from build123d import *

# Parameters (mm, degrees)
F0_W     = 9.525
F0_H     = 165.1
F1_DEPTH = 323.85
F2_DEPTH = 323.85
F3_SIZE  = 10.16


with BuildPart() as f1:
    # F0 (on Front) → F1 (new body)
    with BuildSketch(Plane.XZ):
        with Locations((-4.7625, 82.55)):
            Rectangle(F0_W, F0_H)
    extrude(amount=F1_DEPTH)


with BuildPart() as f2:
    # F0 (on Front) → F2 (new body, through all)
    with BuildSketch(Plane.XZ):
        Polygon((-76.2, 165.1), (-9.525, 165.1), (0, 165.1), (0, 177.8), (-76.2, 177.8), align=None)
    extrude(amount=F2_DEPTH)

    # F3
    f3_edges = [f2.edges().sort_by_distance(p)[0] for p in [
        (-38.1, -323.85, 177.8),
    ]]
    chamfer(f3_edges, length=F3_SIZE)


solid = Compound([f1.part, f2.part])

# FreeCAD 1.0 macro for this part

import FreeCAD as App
import Part
import Sketcher
Q = App.Units.Quantity


def edges_at(feature, points):
    """Names of the edges that pass closest to the given points."""
    edges = feature.Shape.Edges
    near = lambda p: min(range(len(edges)), key=lambda i: edges[i].distToShape(Part.Vertex(*p))[0])
    return sorted({f"Edge{near(p) + 1}" for p in points})

doc = App.newDocument("Part")
params = doc.addObject("Spreadsheet::Sheet", "Params")
for row, (alias, value) in enumerate([
    ("sketch1_height", "6.5 in"),
    ("sketch1_width", "0.375 in"),
    ("pad1_length", "12.75 in"),
    ("sketch2_width", "3 in"),
    ("sketch2_height", "0.5 in"),
    ("pad2_length", "12.75 in"),
    ("chamfer_size", "0.4 in"),
], start=1):
    params.set(f"A{row}", alias)
    params.set(f"B{row}", "=" + value)
    params.setAlias(f"B{row}", alias)

body = doc.addObject("PartDesign::Body", "Body")

# Sketch on XZ plane
sketch1 = body.newObject("Sketcher::SketchObject", "Sketch")
sketch1.AttachmentSupport = (doc.getObject("XZ_Plane"), [""])
sketch1.MapMode = "FlatFace"
sketch1.addGeometry(Part.LineSegment(App.Vector(-10, 165, 0), App.Vector(-10, 0, 0)), False)
sketch1.addGeometry(Part.LineSegment(App.Vector(-10, 0, 0), App.Vector(0, 0, 0)), False)
sketch1.addGeometry(Part.LineSegment(App.Vector(0, 0, 0), App.Vector(0, 165, 0)), False)
sketch1.addGeometry(Part.LineSegment(App.Vector(0, 165, 0), App.Vector(-10, 165, 0)), False)
sketch1.addConstraint(Sketcher.Constraint("Coincident", 0, 2, 1, 1))
sketch1.addConstraint(Sketcher.Constraint("Coincident", 1, 2, 2, 1))
sketch1.addConstraint(Sketcher.Constraint("Coincident", 2, 2, 3, 1))
sketch1.addConstraint(Sketcher.Constraint("Coincident", 3, 2, 0, 1))
sketch1.addConstraint(Sketcher.Constraint("Vertical", 0))
sketch1.addConstraint(Sketcher.Constraint("Horizontal", 1))
sketch1.addConstraint(Sketcher.Constraint("Vertical", 2))
sketch1.addConstraint(Sketcher.Constraint("Horizontal", 3))
sketch1.addConstraint(Sketcher.Constraint("Coincident", 1, 2, -1, 1))
sketch1.addConstraint(Sketcher.Constraint("DistanceY", 0, 2, 0, 1, Q("6.5 in")))
sketch1.addConstraint(Sketcher.Constraint("DistanceX", 1, 1, 1, 2, Q("0.375 in")))
sketch1.setExpression("Constraints[9]", "Params.sketch1_height")
sketch1.setExpression("Constraints[10]", "Params.sketch1_width")
pad1 = body.newObject("PartDesign::Pad", "Pad")
pad1.Profile = sketch1
pad1.setExpression("Length", "Params.pad1_length")
body2 = doc.addObject("PartDesign::Body", "Body001")

# Sketch on XZ plane
sketch2 = body2.newObject("Sketcher::SketchObject", "Sketch001")
sketch2.AttachmentSupport = (doc.getObject("XZ_Plane001"), [""])
sketch2.MapMode = "FlatFace"
sketch2.addGeometry(Part.LineSegment(App.Vector(-76, 165, 0), App.Vector(0, 165, 0)), False)
sketch2.addGeometry(Part.LineSegment(App.Vector(0, 165, 0), App.Vector(0, 178, 0)), False)
sketch2.addGeometry(Part.LineSegment(App.Vector(0, 178, 0), App.Vector(-76, 178, 0)), False)
sketch2.addGeometry(Part.LineSegment(App.Vector(-76, 178, 0), App.Vector(-76, 165, 0)), False)
sketch2.addConstraint(Sketcher.Constraint("Coincident", 0, 2, 1, 1))
sketch2.addConstraint(Sketcher.Constraint("Coincident", 1, 2, 2, 1))
sketch2.addConstraint(Sketcher.Constraint("Coincident", 2, 2, 3, 1))
sketch2.addConstraint(Sketcher.Constraint("Coincident", 3, 2, 0, 1))
sketch2.addConstraint(Sketcher.Constraint("Horizontal", 0))
sketch2.addConstraint(Sketcher.Constraint("Vertical", 1))
sketch2.addConstraint(Sketcher.Constraint("Horizontal", 2))
sketch2.addConstraint(Sketcher.Constraint("Vertical", 3))
sketch2.addConstraint(Sketcher.Constraint("PointOnObject", 0, 2, -2))
sketch2.addConstraint(Sketcher.Constraint("DistanceX", 0, 1, 0, 2, Q("3 in")))
sketch2.addConstraint(Sketcher.Constraint("DistanceY", 1, 1, 1, 2, Q("0.5 in")))
sketch2.addConstraint(Sketcher.Constraint("DistanceY", -1, 1, 1, 2, Q("7 in")))
sketch2.setExpression("Constraints[9]", "Params.sketch2_width")
sketch2.setExpression("Constraints[10]", "Params.sketch2_height")
pad2 = body2.newObject("PartDesign::Pad", "Pad001")
pad2.Profile = sketch2
pad2.setExpression("Length", "Params.pad2_length")
doc.recompute()

chamfer = body2.newObject("PartDesign::Chamfer", "Chamfer")
chamfer.Base = (pad2, edges_at(pad2, [(-38.1, -323.85, 177.8)]))
chamfer.setExpression("Size", "Params.chamfer_size")

doc.recompute()
